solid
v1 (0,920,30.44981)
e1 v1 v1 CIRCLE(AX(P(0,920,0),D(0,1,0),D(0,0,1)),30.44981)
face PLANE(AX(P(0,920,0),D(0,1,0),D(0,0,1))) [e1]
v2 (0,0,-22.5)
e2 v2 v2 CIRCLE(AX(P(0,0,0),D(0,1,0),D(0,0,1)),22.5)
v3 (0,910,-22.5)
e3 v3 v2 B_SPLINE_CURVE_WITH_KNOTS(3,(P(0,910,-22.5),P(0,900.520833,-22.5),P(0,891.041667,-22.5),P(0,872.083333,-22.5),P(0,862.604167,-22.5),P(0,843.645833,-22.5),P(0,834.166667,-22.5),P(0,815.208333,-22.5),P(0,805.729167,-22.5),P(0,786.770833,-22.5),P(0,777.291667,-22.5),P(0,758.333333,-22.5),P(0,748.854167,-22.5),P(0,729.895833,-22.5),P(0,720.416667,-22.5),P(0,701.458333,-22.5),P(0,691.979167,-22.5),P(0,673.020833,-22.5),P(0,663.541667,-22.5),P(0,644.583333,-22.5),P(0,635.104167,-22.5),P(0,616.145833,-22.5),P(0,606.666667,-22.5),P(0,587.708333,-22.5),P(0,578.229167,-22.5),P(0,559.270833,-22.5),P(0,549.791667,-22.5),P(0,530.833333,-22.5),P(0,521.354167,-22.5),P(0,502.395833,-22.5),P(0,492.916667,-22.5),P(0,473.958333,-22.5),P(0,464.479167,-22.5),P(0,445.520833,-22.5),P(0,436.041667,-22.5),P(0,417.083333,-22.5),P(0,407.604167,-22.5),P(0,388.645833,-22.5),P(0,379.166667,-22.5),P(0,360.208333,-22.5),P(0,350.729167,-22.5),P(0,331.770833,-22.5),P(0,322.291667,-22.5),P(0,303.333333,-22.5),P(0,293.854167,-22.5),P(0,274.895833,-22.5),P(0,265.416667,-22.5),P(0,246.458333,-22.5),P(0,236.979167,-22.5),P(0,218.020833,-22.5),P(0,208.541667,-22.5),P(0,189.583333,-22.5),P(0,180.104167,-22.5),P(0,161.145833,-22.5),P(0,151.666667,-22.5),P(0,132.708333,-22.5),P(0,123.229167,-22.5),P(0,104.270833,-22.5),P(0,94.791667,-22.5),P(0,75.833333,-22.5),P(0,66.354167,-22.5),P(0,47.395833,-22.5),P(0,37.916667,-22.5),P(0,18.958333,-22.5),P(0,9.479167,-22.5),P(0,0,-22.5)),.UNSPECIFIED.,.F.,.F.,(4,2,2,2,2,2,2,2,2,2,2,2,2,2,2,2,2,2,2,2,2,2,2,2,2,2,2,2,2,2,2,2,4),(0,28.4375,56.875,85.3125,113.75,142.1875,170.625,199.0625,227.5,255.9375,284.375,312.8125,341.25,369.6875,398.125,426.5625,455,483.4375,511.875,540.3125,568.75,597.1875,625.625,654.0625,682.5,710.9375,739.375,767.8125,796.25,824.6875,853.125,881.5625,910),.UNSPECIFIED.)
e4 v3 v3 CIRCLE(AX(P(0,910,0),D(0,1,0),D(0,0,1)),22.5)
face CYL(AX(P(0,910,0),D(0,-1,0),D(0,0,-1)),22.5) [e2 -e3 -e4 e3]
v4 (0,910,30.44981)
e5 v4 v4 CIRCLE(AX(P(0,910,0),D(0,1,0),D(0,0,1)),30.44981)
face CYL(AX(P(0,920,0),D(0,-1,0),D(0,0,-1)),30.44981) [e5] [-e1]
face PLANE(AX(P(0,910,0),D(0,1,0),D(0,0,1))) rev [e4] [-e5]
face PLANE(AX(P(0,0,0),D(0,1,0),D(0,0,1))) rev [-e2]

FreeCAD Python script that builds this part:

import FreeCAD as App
import Part
import Sketcher

doc = App.newDocument("Part")
body = doc.addObject("PartDesign::Body", "Body")

# Sketch on XZ plane
sketch1 = body.newObject("Sketcher::SketchObject", "Sketch")
sketch1.AttachmentSupport = (doc.getObject("XZ_Plane"), [""])
sketch1.MapMode = "FlatFace"
sketch1.addGeometry(Part.Circle(App.Vector(0, 0, 0), App.Vector(0, 0, 1), 22), False)
sketch1.addConstraint([
    Sketcher.Constraint("Coincident", 0, 3, -1, 1),
    Sketcher.Constraint("Diameter", 0, 45.0),
])
pad1 = body.newObject("PartDesign::Pad", "Pad")
pad1.Profile = sketch1
pad1.Length = 910
pad1.Reversed = True

# Sketch on XZ plane
sketch2 = body.newObject("Sketcher::SketchObject", "Sketch001")
sketch2.AttachmentSupport = (doc.getObject("XZ_Plane"), [""])
sketch2.MapMode = "FlatFace"
sketch2.AttachmentOffset = App.Placement(App.Vector(0, 0, -910), App.Rotation())
sketch2.addGeometry(Part.Circle(App.Vector(0, 0, 0), App.Vector(0, 0, 1), 30), False)
sketch2.addConstraint([
    Sketcher.Constraint("Coincident", 0, 3, -1, 1),
    Sketcher.Constraint("Diameter", 0, 60.89962),
])
pad2 = body.newObject("PartDesign::Pad", "Pad001")
pad2.Profile = sketch2
pad2.Length = 10
pad2.Reversed = True

doc.recompute()
